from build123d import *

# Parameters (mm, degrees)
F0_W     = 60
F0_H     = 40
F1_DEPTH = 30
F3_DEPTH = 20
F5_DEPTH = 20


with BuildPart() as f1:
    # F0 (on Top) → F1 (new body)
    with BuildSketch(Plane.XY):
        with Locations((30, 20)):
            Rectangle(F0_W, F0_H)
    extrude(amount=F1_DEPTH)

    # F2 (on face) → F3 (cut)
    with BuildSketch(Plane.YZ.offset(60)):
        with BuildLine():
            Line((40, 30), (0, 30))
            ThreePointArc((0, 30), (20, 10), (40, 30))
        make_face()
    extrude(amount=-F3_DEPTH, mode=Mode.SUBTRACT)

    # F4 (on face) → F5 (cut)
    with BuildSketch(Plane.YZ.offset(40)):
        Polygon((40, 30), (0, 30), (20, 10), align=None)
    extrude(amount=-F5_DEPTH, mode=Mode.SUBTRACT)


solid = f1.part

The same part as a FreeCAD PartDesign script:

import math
import FreeCAD as App
import Part
import Sketcher
from FreeCAD import Vector


def add_polygon(sketch, points):
    """Adds a closed chain of lines whose ends are joined by coincident constraints."""
    first, n = sketch.GeometryCount, len(points)
    for a, b in zip(points, points[1:] + points[:1]):
        sketch.addGeometry(Part.LineSegment(App.Vector(*a, 0), App.Vector(*b, 0)), False)
    for i in range(n):
        sketch.addConstraint(Sketcher.Constraint("Coincident", first + i, 2, first + (i + 1) % n, 1))

doc = App.newDocument("Part")
body = doc.addObject("PartDesign::Body", "Body")

sketch1 = doc.addObject("Sketcher::SketchObject", "Sketch")
body.addObject(sketch1)
sketch1.AttachmentSupport = (doc.XY_Plane, [""])
sketch1.MapMode = "FlatFace"
add_polygon(sketch1, [(0, 40), (0, 0), (60, 0), (60, 40)])
sketch1.addConstraint([
    Sketcher.Constraint("Vertical", 0),
    Sketcher.Constraint("Horizontal", 1),
    Sketcher.Constraint("Vertical", 2),
    Sketcher.Constraint("Horizontal", 3),
    Sketcher.Constraint("Coincident", 0, 2, -1, 1),
    Sketcher.Constraint("DistanceX", 1, 1, 1, 2, 60.0),
    Sketcher.Constraint("DistanceY", 0, 2, 0, 1, 40.0),
])
pad1 = doc.addObject("PartDesign::Pad", "Pad")
body.addObject(pad1)
pad1.Profile = sketch1
pad1.Length = 30

sketch2 = doc.addObject("Sketcher::SketchObject", "Sketch001")
body.addObject(sketch2)
sketch2.AttachmentSupport = (doc.YZ_Plane, [""])
sketch2.MapMode = "FlatFace"
sketch2.AttachmentOffset = App.Placement(Vector(0, 0, 60), App.Rotation())
sketch2.addGeometry([
    Part.LineSegment(Vector(40, 30, 0), Vector(0, 30, 0)),
    Part.ArcOfCircle(Part.Circle(Vector(20, 30, 0), Vector(0, 0, 1), 20), math.radians(180), math.radians(360)),
], False)
sketch2.addConstraint([
    Sketcher.Constraint("Coincident", 0, 1, 1, 2),
    Sketcher.Constraint("Coincident", 1, 1, 0, 2),
    Sketcher.Constraint("Horizontal", 0),
    Sketcher.Constraint("PointOnObject", 1, 1, -2),
    Sketcher.Constraint("Horizontal", 1, 3, 0, 1),
    Sketcher.Constraint("Radius", 1, 20.0),
    Sketcher.Constraint("DistanceY", -1, 1, 1, 3, 30.0),
])
pocket1 = doc.addObject("PartDesign::Pocket", "Pocket")
body.addObject(pocket1)
pocket1.Profile = sketch2
pocket1.Length = 20

sketch3 = doc.addObject("Sketcher::SketchObject", "Sketch002")
body.addObject(sketch3)
sketch3.AttachmentSupport = (doc.YZ_Plane, [""])
sketch3.MapMode = "FlatFace"
sketch3.AttachmentOffset = App.Placement(Vector(0, 0, 40), App.Rotation())
add_polygon(sketch3, [(40, 30), (0, 30), (20, 10)])
sketch3.addConstraint([
    Sketcher.Constraint("Horizontal", 0),
    Sketcher.Constraint("PointOnObject", 0, 2, -2),
    Sketcher.Constraint("Perpendicular", 1, 2),
    Sketcher.Constraint("Equal", 1, 2),
    Sketcher.Constraint("DistanceX", 0, 2, 0, 1, 40.0),
    Sketcher.Constraint("DistanceY", -1, 1, 0, 2, 30.0),
])
pocket2 = doc.addObject("PartDesign::Pocket", "Pocket001")
body.addObject(pocket2)
pocket2.Profile = sketch3
pocket2.Length = 20

doc.recompute()
